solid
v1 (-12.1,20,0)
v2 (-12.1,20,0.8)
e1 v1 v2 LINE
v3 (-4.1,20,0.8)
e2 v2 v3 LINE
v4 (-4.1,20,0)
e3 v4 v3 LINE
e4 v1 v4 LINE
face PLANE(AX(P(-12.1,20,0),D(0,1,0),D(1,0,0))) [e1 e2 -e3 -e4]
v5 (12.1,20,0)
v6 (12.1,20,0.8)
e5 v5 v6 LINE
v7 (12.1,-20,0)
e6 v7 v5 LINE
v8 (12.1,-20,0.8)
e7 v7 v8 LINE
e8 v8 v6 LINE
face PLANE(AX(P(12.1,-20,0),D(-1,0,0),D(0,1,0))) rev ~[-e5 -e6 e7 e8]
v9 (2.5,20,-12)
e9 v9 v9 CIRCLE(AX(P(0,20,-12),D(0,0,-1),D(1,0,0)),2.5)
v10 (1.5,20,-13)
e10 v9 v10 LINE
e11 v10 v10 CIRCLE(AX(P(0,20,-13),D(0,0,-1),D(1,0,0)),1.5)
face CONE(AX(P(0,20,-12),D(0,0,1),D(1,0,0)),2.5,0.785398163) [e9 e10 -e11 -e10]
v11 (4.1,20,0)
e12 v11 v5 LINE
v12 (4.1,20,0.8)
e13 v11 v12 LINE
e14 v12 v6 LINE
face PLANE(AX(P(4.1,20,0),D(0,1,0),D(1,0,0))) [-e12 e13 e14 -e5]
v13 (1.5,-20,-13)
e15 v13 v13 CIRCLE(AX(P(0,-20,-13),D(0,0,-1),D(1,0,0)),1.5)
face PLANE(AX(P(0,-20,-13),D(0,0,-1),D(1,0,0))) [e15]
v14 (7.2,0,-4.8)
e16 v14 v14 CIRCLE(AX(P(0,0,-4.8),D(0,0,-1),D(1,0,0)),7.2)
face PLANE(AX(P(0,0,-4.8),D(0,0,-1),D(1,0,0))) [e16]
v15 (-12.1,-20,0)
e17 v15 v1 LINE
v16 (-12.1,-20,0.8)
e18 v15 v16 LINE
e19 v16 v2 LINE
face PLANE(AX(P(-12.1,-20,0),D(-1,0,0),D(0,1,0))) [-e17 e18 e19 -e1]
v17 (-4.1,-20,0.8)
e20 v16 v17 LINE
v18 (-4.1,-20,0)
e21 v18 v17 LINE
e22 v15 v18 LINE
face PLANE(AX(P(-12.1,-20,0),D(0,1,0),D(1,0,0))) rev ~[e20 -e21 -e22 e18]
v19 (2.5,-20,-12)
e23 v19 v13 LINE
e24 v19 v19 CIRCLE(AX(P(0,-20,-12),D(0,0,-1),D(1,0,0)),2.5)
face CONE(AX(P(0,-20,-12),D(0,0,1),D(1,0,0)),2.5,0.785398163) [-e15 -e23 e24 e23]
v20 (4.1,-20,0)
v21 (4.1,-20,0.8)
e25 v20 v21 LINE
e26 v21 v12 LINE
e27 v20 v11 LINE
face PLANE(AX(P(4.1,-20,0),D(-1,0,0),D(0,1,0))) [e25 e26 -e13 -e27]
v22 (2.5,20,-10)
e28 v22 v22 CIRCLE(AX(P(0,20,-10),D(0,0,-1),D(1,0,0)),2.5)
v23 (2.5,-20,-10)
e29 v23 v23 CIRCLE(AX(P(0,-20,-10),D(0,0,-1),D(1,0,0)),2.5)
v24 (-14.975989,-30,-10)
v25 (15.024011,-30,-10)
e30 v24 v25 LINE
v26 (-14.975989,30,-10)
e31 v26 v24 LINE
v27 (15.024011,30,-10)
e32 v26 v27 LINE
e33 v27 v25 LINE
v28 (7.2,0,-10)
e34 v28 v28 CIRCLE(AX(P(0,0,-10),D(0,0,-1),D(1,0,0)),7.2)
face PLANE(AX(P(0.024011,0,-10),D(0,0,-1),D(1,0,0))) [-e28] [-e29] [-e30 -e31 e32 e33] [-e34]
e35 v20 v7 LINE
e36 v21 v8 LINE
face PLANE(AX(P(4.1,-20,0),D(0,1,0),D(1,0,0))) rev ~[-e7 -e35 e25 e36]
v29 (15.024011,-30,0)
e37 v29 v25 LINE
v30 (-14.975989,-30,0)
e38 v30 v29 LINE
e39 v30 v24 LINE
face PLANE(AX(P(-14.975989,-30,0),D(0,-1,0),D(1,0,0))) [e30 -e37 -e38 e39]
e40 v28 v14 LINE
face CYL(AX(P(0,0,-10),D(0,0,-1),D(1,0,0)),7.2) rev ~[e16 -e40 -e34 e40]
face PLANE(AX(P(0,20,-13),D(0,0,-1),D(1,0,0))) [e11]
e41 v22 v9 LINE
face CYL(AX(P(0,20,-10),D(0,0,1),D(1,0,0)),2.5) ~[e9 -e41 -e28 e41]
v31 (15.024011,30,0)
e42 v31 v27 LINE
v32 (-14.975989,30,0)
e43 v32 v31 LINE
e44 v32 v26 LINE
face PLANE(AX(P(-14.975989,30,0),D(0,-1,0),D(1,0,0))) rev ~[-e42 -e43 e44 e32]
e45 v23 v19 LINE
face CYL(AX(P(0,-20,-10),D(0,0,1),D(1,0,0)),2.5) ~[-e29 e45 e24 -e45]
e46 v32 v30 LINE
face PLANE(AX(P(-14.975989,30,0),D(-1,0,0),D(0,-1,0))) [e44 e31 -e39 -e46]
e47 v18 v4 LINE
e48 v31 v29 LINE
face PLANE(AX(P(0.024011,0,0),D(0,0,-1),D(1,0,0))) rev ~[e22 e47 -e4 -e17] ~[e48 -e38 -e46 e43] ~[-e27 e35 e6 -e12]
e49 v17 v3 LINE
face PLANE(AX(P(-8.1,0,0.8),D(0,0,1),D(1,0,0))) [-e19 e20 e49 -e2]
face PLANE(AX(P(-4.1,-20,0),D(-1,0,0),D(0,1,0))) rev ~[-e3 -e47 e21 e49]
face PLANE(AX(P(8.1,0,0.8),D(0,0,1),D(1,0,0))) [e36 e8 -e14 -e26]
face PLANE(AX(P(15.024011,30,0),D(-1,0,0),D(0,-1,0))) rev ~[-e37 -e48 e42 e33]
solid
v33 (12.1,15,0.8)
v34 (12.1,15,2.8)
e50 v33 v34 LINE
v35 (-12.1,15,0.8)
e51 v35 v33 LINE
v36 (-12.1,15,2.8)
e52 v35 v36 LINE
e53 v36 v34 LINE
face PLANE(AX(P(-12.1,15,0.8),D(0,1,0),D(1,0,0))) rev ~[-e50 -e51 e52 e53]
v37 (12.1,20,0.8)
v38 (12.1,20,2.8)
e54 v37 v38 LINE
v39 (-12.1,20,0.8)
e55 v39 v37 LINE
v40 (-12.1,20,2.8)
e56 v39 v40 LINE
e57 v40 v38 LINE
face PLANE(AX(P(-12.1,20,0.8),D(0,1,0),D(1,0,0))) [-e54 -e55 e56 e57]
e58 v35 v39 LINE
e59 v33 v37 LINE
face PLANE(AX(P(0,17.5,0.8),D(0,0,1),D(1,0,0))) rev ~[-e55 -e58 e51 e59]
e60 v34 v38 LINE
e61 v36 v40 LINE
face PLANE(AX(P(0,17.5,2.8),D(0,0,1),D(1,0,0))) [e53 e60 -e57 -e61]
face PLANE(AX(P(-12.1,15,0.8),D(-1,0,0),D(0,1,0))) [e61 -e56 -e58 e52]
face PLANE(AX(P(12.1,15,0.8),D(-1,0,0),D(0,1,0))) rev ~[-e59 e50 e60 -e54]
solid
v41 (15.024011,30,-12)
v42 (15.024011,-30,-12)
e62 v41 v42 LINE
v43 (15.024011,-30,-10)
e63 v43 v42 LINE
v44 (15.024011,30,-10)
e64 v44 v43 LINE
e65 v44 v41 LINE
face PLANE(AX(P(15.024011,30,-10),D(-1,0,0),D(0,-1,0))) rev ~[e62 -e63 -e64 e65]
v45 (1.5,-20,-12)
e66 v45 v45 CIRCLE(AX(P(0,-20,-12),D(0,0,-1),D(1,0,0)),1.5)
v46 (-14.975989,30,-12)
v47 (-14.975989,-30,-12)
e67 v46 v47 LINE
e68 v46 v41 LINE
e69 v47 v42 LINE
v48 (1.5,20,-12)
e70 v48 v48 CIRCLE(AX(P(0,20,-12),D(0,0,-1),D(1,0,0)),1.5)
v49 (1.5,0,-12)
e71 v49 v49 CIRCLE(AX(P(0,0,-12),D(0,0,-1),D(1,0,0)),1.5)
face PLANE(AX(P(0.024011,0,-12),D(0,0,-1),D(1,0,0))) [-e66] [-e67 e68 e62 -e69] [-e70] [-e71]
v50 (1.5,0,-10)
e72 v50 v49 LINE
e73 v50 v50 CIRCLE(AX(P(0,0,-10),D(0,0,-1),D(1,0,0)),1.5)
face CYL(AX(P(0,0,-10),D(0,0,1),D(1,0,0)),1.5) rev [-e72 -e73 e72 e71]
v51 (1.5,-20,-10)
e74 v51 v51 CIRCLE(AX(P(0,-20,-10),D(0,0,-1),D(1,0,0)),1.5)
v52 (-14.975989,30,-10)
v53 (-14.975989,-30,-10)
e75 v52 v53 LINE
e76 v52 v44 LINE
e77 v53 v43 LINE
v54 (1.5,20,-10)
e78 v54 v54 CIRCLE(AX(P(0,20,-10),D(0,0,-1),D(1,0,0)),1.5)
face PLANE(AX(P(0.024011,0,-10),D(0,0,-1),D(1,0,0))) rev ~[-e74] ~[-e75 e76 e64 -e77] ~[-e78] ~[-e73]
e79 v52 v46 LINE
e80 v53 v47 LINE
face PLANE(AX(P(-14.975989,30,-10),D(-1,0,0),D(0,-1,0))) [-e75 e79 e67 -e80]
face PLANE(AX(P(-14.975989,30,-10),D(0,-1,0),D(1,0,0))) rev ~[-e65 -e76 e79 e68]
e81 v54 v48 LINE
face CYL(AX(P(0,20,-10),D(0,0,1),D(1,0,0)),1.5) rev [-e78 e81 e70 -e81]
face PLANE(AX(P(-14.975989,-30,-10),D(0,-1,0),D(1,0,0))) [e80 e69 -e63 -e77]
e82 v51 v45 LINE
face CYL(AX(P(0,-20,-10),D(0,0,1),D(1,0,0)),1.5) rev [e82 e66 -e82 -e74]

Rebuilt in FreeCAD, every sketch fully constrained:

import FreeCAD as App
import Part
import Sketcher
from FreeCAD import Vector


def edges_at(feature, points):
    """Names of the edges that pass closest to the given points."""
    edges = feature.Shape.Edges
    near = lambda p: min(range(len(edges)), key=lambda i: edges[i].distToShape(Part.Vertex(*p))[0])
    return sorted({f"Edge{near(p) + 1}" for p in points})


def add_polygon(sketch, points):
    """Adds a closed chain of lines whose ends are joined by coincident constraints."""
    first, n = sketch.GeometryCount, len(points)
    for a, b in zip(points, points[1:] + points[:1]):
        sketch.addGeometry(Part.LineSegment(App.Vector(*a, 0), App.Vector(*b, 0)), False)
    for i in range(n):
        sketch.addConstraint(Sketcher.Constraint("Coincident", first + i, 2, first + (i + 1) % n, 1))

doc = App.newDocument("Part")
body = doc.addObject("PartDesign::Body", "Body")
body.AllowCompound = True

sketch1 = body.newObject("Sketcher::SketchObject", "Sketch")
sketch1.AttachmentSupport = (doc.getObject("XY_Plane"), [""])
sketch1.MapMode = "FlatFace"
add_polygon(sketch1, [(-12, 20), (-12, -20), (-4, -20), (-4, 20)])
add_polygon(sketch1, [(4, 20), (4, -20), (12, -20), (12, 20)])
sketch1.addConstraint(Sketcher.Constraint("Vertical", 0))
sketch1.addConstraint(Sketcher.Constraint("Horizontal", 1))
sketch1.addConstraint(Sketcher.Constraint("Vertical", 2))
sketch1.addConstraint(Sketcher.Constraint("Horizontal", 3))
sketch1.addConstraint(Sketcher.Constraint("Vertical", 4))
sketch1.addConstraint(Sketcher.Constraint("Horizontal", 5))
sketch1.addConstraint(Sketcher.Constraint("Vertical", 6))
sketch1.addConstraint(Sketcher.Constraint("Horizontal", 7))
sketch1.addConstraint(Sketcher.Constraint("Symmetric", 2, 2, 4, 2, -1, 1))
sketch1.addConstraint(Sketcher.Constraint("Symmetric", 0, 2, 6, 2, -1, 1))
sketch1.addConstraint(Sketcher.Constraint("Horizontal", 1, 2, 4, 2))
sketch1.addConstraint(Sketcher.Constraint("DistanceX", 1, 1, 1, 2, 8.0))
sketch1.addConstraint(Sketcher.Constraint("DistanceY", 0, 2, 0, 1, 40.0))
sketch1.addConstraint(Sketcher.Constraint("DistanceX", 0, 2, -1, 1, 12.1))
pad1 = body.newObject("PartDesign::Pad", "Pad")
pad1.Profile = sketch1
pad1.Length = 0.8

sketch2 = body.newObject("Sketcher::SketchObject", "Sketch001")
sketch2.AttachmentSupport = (doc.getObject("XY_Plane"), [""])
sketch2.MapMode = "FlatFace"
add_polygon(sketch2, [(-15, -30), (-15, 30), (15, 30), (15, -30)])
sketch2.addConstraint(Sketcher.Constraint("Vertical", 0))
sketch2.addConstraint(Sketcher.Constraint("Horizontal", 1))
sketch2.addConstraint(Sketcher.Constraint("Vertical", 2))
sketch2.addConstraint(Sketcher.Constraint("Horizontal", 3))
sketch2.addConstraint(Sketcher.Constraint("DistanceX", 1, 1, 1, 2, 30.0))
sketch2.addConstraint(Sketcher.Constraint("DistanceY", 0, 1, 0, 2, 60.0))
sketch2.addConstraint(Sketcher.Constraint("DistanceY", -1, 1, 0, 2, 30.0))
sketch2.addConstraint(Sketcher.Constraint("DistanceX", 0, 2, -1, 1, 14.975989))
pad2 = body.newObject("PartDesign::Pad", "Pad001")
pad2.Profile = sketch2
pad2.Length = 10
pad2.Reversed = True

sketch3 = body.newObject("Sketcher::SketchObject", "Sketch002")
sketch3.AttachmentSupport = (doc.getObject("XY_Plane"), [""])
sketch3.MapMode = "FlatFace"
sketch3.AttachmentOffset = App.Placement(Vector(0, 0, -10), App.Rotation())
sketch3.addGeometry(Part.Circle(Vector(0, 0, 0), Vector(0, 0, 1), 7), False)
sketch3.addConstraint(Sketcher.Constraint("Coincident", 0, 3, -1, 1))
sketch3.addConstraint(Sketcher.Constraint("Diameter", 0, 14.4))
pocket1 = body.newObject("PartDesign::Pocket", "Pocket")
pocket1.Profile = sketch3
pocket1.Length = 5.2
pocket1.Reversed = True

sketch4 = body.newObject("Sketcher::SketchObject", "Sketch003")
sketch4.AttachmentSupport = (doc.getObject("XY_Plane"), [""])
sketch4.MapMode = "FlatFace"
sketch4.AttachmentOffset = App.Placement(Vector(0, 0, -10), App.Rotation())
sketch4.addGeometry(Part.Circle(Vector(0, -20, 0), Vector(0, 0, 1), 2.5), False)
sketch4.addGeometry(Part.Circle(Vector(0, 20, 0), Vector(0, 0, 1), 2.5), False)
sketch4.addConstraint(Sketcher.Constraint("Equal", 0, 1))
sketch4.addConstraint(Sketcher.Constraint("Symmetric", 0, 3, 1, 3, -1, 1))
sketch4.addConstraint(Sketcher.Constraint("PointOnObject", 0, 3, -2))
sketch4.addConstraint(Sketcher.Constraint("Diameter", 0, 5.0))
sketch4.addConstraint(Sketcher.Constraint("DistanceY", 0, 3, -1, 1, 20.0))
pad3 = body.newObject("PartDesign::Pad", "Pad002")
pad3.Profile = sketch4
pad3.Length = 3
pad3.Reversed = True
doc.recompute()

chamfer = body.newObject("PartDesign::Chamfer", "Chamfer")
chamfer.Base = (pad3, edges_at(pad3, [(-2.5, -20, -13), (-2.5, 20, -13)]))
chamfer.Size = 1
body2 = doc.addObject("PartDesign::Body", "Body001")

sketch5 = body2.newObject("Sketcher::SketchObject", "Sketch004")
sketch5.AttachmentSupport = (doc.getObject("XY_Plane001"), [""])
sketch5.MapMode = "FlatFace"
sketch5.AttachmentOffset = App.Placement(Vector(0, 0, 0.8), App.Rotation())
add_polygon(sketch5, [(-12, 20), (-12, 15), (12, 15), (12, 20)])
sketch5.addConstraint(Sketcher.Constraint("Vertical", 0))
sketch5.addConstraint(Sketcher.Constraint("Horizontal", 1))
sketch5.addConstraint(Sketcher.Constraint("Vertical", 2))
sketch5.addConstraint(Sketcher.Constraint("Horizontal", 3))
sketch5.addConstraint(Sketcher.Constraint("DistanceY", 0, 2, 0, 1, 5.0))
sketch5.addConstraint(Sketcher.Constraint("DistanceX", 1, 1, 1, 2, 24.2))
sketch5.addConstraint(Sketcher.Constraint("DistanceY", -1, 1, 0, 2, 15.0))
sketch5.addConstraint(Sketcher.Constraint("DistanceX", 0, 2, -1, 1, 12.1))
pad4 = body2.newObject("PartDesign::Pad", "Pad003")
pad4.Profile = sketch5
pad4.Length = 2
body3 = doc.addObject("PartDesign::Body", "Body002")

sketch6 = body3.newObject("Sketcher::SketchObject", "Sketch005")
sketch6.AttachmentSupport = (doc.getObject("XY_Plane002"), [""])
sketch6.MapMode = "FlatFace"
sketch6.AttachmentOffset = App.Placement(Vector(0, 0, -10), App.Rotation())
add_polygon(sketch6, [(-15, -30), (-15, 30), (15, 30), (15, -30)])
sketch6.addGeometry(Part.Circle(Vector(0, 20, 0), Vector(0, 0, 1), 1.5), False)
sketch6.addGeometry(Part.Circle(Vector(0, 0, 0), Vector(0, 0, 1), 1.5), False)
sketch6.addGeometry(Part.Circle(Vector(0, -20, 0), Vector(0, 0, 1), 1.5), False)
sketch6.addConstraint(Sketcher.Constraint("Vertical", 0))
sketch6.addConstraint(Sketcher.Constraint("Horizontal", 1))
sketch6.addConstraint(Sketcher.Constraint("Vertical", 2))
sketch6.addConstraint(Sketcher.Constraint("Horizontal", 3))
sketch6.addConstraint(Sketcher.Constraint("Coincident", 5, 3, -1, 1))
sketch6.addConstraint(Sketcher.Constraint("Equal", 4, 5))
sketch6.addConstraint(Sketcher.Constraint("Equal", 5, 6))
sketch6.addConstraint(Sketcher.Constraint("Symmetric", 4, 3, 6, 3, -1, 1))
sketch6.addConstraint(Sketcher.Constraint("PointOnObject", 4, 3, -2))
sketch6.addConstraint(Sketcher.Constraint("Diameter", 4, 3.0))
sketch6.addConstraint(Sketcher.Constraint("DistanceX", 1, 1, 1, 2, 30.0))
sketch6.addConstraint(Sketcher.Constraint("DistanceY", 0, 1, 0, 2, 60.0))
sketch6.addConstraint(Sketcher.Constraint("DistanceY", -1, 1, 4, 3, 20.0))
sketch6.addConstraint(Sketcher.Constraint("DistanceY", -1, 1, 0, 2, 30.0))
sketch6.addConstraint(Sketcher.Constraint("DistanceX", 0, 2, -1, 1, 14.975989))
pad5 = body3.newObject("PartDesign::Pad", "Pad004")
pad5.Profile = sketch6
pad5.Length = 2
pad5.Reversed = True

doc.recompute()
